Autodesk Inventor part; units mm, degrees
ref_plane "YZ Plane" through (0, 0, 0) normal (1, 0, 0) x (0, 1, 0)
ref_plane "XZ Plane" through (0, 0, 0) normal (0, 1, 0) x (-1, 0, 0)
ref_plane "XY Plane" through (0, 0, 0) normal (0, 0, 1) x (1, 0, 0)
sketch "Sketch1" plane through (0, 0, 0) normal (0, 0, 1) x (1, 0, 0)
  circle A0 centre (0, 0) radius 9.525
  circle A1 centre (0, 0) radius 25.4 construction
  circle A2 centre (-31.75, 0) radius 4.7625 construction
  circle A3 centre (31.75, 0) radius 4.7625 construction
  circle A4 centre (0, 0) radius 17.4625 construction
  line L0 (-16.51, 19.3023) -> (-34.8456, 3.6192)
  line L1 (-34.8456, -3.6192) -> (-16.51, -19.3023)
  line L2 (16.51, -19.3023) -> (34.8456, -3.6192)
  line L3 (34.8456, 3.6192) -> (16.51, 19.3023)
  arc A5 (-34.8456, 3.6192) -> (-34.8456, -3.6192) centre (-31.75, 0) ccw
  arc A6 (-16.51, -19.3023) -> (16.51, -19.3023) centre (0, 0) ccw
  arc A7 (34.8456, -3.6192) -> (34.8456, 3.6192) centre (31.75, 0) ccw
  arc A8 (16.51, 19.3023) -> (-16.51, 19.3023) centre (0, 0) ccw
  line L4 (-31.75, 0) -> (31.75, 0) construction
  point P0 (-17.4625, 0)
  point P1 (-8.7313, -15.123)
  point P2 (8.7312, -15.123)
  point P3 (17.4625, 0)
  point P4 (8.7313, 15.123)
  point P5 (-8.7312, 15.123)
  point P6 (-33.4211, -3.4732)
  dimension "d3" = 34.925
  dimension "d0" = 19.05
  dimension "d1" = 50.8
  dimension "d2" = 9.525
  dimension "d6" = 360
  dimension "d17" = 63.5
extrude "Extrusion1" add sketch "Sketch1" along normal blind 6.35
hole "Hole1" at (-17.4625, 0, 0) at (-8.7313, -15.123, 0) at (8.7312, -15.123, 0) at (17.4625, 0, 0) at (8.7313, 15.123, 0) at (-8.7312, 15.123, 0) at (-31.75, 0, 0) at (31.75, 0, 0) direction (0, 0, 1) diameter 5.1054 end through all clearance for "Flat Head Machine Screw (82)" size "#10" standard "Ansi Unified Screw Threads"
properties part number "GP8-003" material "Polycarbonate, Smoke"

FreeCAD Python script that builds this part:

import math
import FreeCAD as App
import Part
import Sketcher
Q = App.Units.Quantity

doc = App.newDocument("Part")
body = doc.addObject("PartDesign::Body", "Body")

# Sketch on XY plane
sketch1 = doc.addObject("Sketcher::SketchObject", "Sketch")
body.addObject(sketch1)
sketch1.AttachmentSupport = (doc.XY_Plane, [""])
sketch1.MapMode = "FlatFace"
sketch1.addGeometry([
    Part.ArcOfCircle(Part.Circle(App.Vector(0, 0, 0), App.Vector(0, 0, 1), 25.4), math.radians(49), math.radians(131)),  # 0
    Part.LineSegment(App.Vector(-16.5, 19.3, 0), App.Vector(-34.8, 3.6, 0)),  # 1
    Part.ArcOfCircle(Part.Circle(App.Vector(-31.8, 0, 0), App.Vector(0, 0, 1), 4.8), math.radians(131), math.radians(229)),  # 2
    Part.LineSegment(App.Vector(-34.8, -3.6, 0), App.Vector(-16.5, -19.3, 0)),  # 3
    Part.ArcOfCircle(Part.Circle(App.Vector(0, 0, 0), App.Vector(0, 0, 1), 25.4), math.radians(-131), math.radians(-49)),  # 4
    Part.LineSegment(App.Vector(16.5, -19.3, 0), App.Vector(34.8, -3.6, 0)),  # 5
    Part.ArcOfCircle(Part.Circle(App.Vector(31.8, 0, 0), App.Vector(0, 0, 1), 4.8), math.radians(-49), math.radians(49)),  # 6
    Part.LineSegment(App.Vector(34.8, 3.6, 0), App.Vector(16.5, 19.3, 0)),  # 7
    Part.Circle(App.Vector(0, 0, 0), App.Vector(0, 0, 1), 9.5),  # 8
], False)
sketch1.addConstraint([
    Sketcher.Constraint("Tangent", 0, 2, 1, 1),
    Sketcher.Constraint("Tangent", 1, 2, 2, 1),
    Sketcher.Constraint("Tangent", 2, 2, 3, 1),
    Sketcher.Constraint("Tangent", 3, 2, 4, 1),
    Sketcher.Constraint("Tangent", 4, 2, 5, 1),
    Sketcher.Constraint("Tangent", 5, 2, 6, 1),
    Sketcher.Constraint("Tangent", 6, 2, 7, 1),
    Sketcher.Constraint("Tangent", 7, 2, 0, 1),
    Sketcher.Constraint("Coincident", 0, 3, -1, 1),
    Sketcher.Constraint("Coincident", 4, 3, -1, 1),
    Sketcher.Constraint("Coincident", 8, 3, -1, 1),
    Sketcher.Constraint("Equal", 0, 4),
    Sketcher.Constraint("Equal", 2, 6),
    Sketcher.Constraint("Symmetric", 2, 3, 6, 3, -1, 1),
    Sketcher.Constraint("PointOnObject", 2, 3, -1),
    Sketcher.Constraint("Radius", 0, Q("1 in")),
    Sketcher.Constraint("Diameter", 8, Q("0.75 in")),
    Sketcher.Constraint("Radius", 2, Q("0.1875 in")),
    Sketcher.Constraint("DistanceX", 2, 3, 6, 3, Q("2.5 in")),
])
pad1 = doc.addObject("PartDesign::Pad", "Pad")
body.addObject(pad1)
pad1.Profile = sketch1
pad1.Length = Q("0.25 in")

# Sketch on XY plane
sketch2 = doc.addObject("Sketcher::SketchObject", "Sketch001")
body.addObject(sketch2)
sketch2.AttachmentSupport = (doc.XY_Plane, [""])
sketch2.MapMode = "FlatFace"
sketch2.addGeometry([
    Part.Circle(App.Vector(-17.5, 0, 0), App.Vector(0, 0, 1), 2.6),  # 0
    Part.Circle(App.Vector(-8.7, -15.1, 0), App.Vector(0, 0, 1), 2.6),  # 1
    Part.Circle(App.Vector(8.7, -15.1, 0), App.Vector(0, 0, 1), 2.6),  # 2
    Part.Circle(App.Vector(17.5, 0, 0), App.Vector(0, 0, 1), 2.6),  # 3
    Part.Circle(App.Vector(8.7, 15.1, 0), App.Vector(0, 0, 1), 2.6),  # 4
    Part.Circle(App.Vector(-8.7, 15.1, 0), App.Vector(0, 0, 1), 2.6),  # 5
    Part.Circle(App.Vector(-31.8, 0, 0), App.Vector(0, 0, 1), 2.6),  # 6
    Part.Circle(App.Vector(31.8, 0, 0), App.Vector(0, 0, 1), 2.6),  # 7
], False)
sketch2.addConstraint([
    Sketcher.Constraint("Equal", 0, 1),
    Sketcher.Constraint("Equal", 1, 2),
    Sketcher.Constraint("Equal", 2, 3),
    Sketcher.Constraint("Equal", 3, 4),
    Sketcher.Constraint("Equal", 4, 5),
    Sketcher.Constraint("Equal", 5, 6),
    Sketcher.Constraint("Equal", 6, 7),
    Sketcher.Constraint("Symmetric", 0, 3, 3, 3, -1, 1),
    Sketcher.Constraint("Symmetric", 1, 3, 4, 3, -1, 1),
    Sketcher.Constraint("Symmetric", 2, 3, 5, 3, -1, 1),
    Sketcher.Constraint("Symmetric", 6, 3, 7, 3, -1, 1),
    Sketcher.Constraint("Symmetric", 1, 3, 2, 3, -2),
    Sketcher.Constraint("PointOnObject", 0, 3, -1),
    Sketcher.Constraint("PointOnObject", 6, 3, -1),
    Sketcher.Constraint("Diameter", 0, Q("0.201 in")),
    Sketcher.Constraint("DistanceX", 6, 3, -1, 1, Q("1.25 in")),
    Sketcher.Constraint("DistanceX", 0, 3, -1, 1, Q("0.6875 in")),
    Sketcher.Constraint("DistanceX", 1, 3, -1, 1, Q("0.343752 in")),
    Sketcher.Constraint("DistanceY", 1, 3, -1, 1, Q("0.5954 in")),
])
doc.recompute()
hole = doc.addObject("PartDesign::Hole", "Hole")
body.addObject(hole)
hole.Profile = sketch2
hole.ThreadType = "None"
hole.Diameter = Q("0.201 in")
hole.DepthType = "ThroughAll"
hole.Reversed = True

doc.recompute()
